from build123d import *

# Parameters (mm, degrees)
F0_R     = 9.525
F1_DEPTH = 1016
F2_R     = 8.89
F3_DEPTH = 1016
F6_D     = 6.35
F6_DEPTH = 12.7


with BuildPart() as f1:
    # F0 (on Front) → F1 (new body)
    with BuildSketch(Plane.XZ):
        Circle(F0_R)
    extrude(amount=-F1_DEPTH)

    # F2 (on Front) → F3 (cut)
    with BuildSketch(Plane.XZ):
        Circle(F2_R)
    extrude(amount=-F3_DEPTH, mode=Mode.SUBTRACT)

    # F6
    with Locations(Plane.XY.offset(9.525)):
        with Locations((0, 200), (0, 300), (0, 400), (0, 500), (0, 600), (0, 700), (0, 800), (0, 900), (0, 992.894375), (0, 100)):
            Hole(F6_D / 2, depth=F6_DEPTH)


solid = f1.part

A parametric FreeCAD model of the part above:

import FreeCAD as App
import Part
import Sketcher

V = App.Vector
Q = App.Units.Quantity

doc = App.newDocument("Part")
body = doc.addObject("PartDesign::Body", "Body")

# Sketch on XZ plane
sketch1 = body.newObject("Sketcher::SketchObject", "Sketch")
sketch1.AttachmentSupport = (doc.getObject("XZ_Plane"), [""])
sketch1.MapMode = "FlatFace"
sketch1.addGeometry(Part.Circle(V(0, 0, 0), V(0, 0, 1), 10), False)
sketch1.addConstraint([
    Sketcher.Constraint("Coincident", 0, 3, -1, 1),
    Sketcher.Constraint("Diameter", 0, Q("0.75 in")),
])
pad1 = body.newObject("PartDesign::Pad", "Pad")
pad1.Profile = sketch1
pad1.Length = Q("40 in")
pad1.Reversed = True

# Sketch on XZ plane
sketch2 = body.newObject("Sketcher::SketchObject", "Sketch001")
sketch2.AttachmentSupport = (doc.getObject("XZ_Plane"), [""])
sketch2.MapMode = "FlatFace"
sketch2.addGeometry(Part.Circle(V(0, 0, 0), V(0, 0, 1), 9), False)
sketch2.addConstraint([
    Sketcher.Constraint("Coincident", 0, 3, -1, 1),
    Sketcher.Constraint("Diameter", 0, Q("0.7 in")),
])
pocket1 = body.newObject("PartDesign::Pocket", "Pocket")
pocket1.Profile = sketch2
pocket1.Length = Q("40 in")

# Sketch on XY plane
sketch3 = body.newObject("Sketcher::SketchObject", "Sketch002")
sketch3.AttachmentSupport = (doc.getObject("XY_Plane"), [""])
sketch3.MapMode = "FlatFace"
sketch3.AttachmentOffset = App.Placement(V(0, 0, 0.375 * 25.4), App.Rotation())
sketch3.addGeometry([
    Part.Circle(V(0, 200, 0), V(0, 0, 1), 3.2),  # 0
    Part.Circle(V(0, 300, 0), V(0, 0, 1), 3.2),  # 1
    Part.Circle(V(0, 400, 0), V(0, 0, 1), 3.2),  # 2
    Part.Circle(V(0, 500, 0), V(0, 0, 1), 3.2),  # 3
    Part.Circle(V(0, 600, 0), V(0, 0, 1), 3.2),  # 4
    Part.Circle(V(0, 700, 0), V(0, 0, 1), 3.2),  # 5
    Part.Circle(V(0, 800, 0), V(0, 0, 1), 3.2),  # 6
    Part.Circle(V(0, 900, 0), V(0, 0, 1), 3.2),  # 7
    Part.Circle(V(0, 992.9, 0), V(0, 0, 1), 3.2),  # 8
    Part.Circle(V(0, 100, 0), V(0, 0, 1), 3.2),  # 9
], False)
sketch3.addConstraint([
    Sketcher.Constraint("Equal", 0, 1),
    Sketcher.Constraint("Equal", 1, 2),
    Sketcher.Constraint("Equal", 2, 3),
    Sketcher.Constraint("Equal", 3, 4),
    Sketcher.Constraint("Equal", 4, 5),
    Sketcher.Constraint("Equal", 5, 6),
    Sketcher.Constraint("Equal", 6, 7),
    Sketcher.Constraint("Equal", 7, 8),
    Sketcher.Constraint("Equal", 8, 9),
    Sketcher.Constraint("PointOnObject", 0, 3, -2),
    Sketcher.Constraint("PointOnObject", 1, 3, -2),
    Sketcher.Constraint("PointOnObject", 2, 3, -2),
    Sketcher.Constraint("PointOnObject", 3, 3, -2),
    Sketcher.Constraint("PointOnObject", 4, 3, -2),
    Sketcher.Constraint("PointOnObject", 5, 3, -2),
    Sketcher.Constraint("PointOnObject", 6, 3, -2),
    Sketcher.Constraint("PointOnObject", 7, 3, -2),
    Sketcher.Constraint("PointOnObject", 8, 3, -2),
    Sketcher.Constraint("PointOnObject", 9, 3, -2),
    Sketcher.Constraint("Diameter", 0, Q("0.25 in")),
    Sketcher.Constraint("DistanceY", -1, 1, 0, 3, 200.0),
    Sketcher.Constraint("DistanceY", -1, 1, 1, 3, 300.0),
    Sketcher.Constraint("DistanceY", -1, 1, 2, 3, 400.0),
    Sketcher.Constraint("DistanceY", -1, 1, 3, 3, 500.0),
    Sketcher.Constraint("DistanceY", -1, 1, 4, 3, 600.0),
    Sketcher.Constraint("DistanceY", -1, 1, 5, 3, 700.0),
    Sketcher.Constraint("DistanceY", -1, 1, 6, 3, 800.0),
    Sketcher.Constraint("DistanceY", -1, 1, 7, 3, 900.0),
    Sketcher.Constraint("DistanceY", -1, 1, 9, 3, 100.0),
    Sketcher.Constraint("DistanceY", -1, 1, 8, 3, 992.894375),
])
doc.recompute()
hole = body.newObject("PartDesign::Hole", "Hole")
hole.Profile = sketch3
hole.ThreadType = "None"
hole.Diameter = Q("0.25 in")
hole.DepthType = "Dimension"
hole.Depth = Q("0.5 in")
hole.DrillPoint = "Flat"

doc.recompute()
